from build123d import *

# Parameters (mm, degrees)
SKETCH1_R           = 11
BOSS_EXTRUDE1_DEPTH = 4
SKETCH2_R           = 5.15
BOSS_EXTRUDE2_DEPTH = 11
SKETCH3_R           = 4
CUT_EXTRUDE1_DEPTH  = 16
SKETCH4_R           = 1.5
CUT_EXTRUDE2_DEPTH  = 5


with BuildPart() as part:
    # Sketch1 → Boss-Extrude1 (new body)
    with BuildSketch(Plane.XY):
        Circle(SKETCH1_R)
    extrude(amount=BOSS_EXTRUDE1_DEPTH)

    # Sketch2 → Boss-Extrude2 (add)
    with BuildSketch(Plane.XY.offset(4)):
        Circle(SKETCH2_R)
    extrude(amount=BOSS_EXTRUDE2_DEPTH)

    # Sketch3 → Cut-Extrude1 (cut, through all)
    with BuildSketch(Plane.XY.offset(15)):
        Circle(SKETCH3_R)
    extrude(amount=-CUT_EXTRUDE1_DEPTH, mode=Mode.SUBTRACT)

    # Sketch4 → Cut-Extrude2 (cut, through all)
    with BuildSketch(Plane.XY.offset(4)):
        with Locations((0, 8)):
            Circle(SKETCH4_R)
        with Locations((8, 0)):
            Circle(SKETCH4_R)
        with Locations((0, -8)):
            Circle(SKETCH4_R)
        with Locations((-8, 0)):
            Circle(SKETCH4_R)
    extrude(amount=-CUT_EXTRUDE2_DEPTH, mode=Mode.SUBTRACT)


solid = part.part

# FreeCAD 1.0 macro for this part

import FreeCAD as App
import Part
import Sketcher
from FreeCAD import Vector

doc = App.newDocument("Part")
params = doc.addObject("Spreadsheet::Sheet", "Params")
for row, (alias, value) in enumerate([
    ("sketch1_diameter", "22 mm"),
    ("pad1_length", "4 mm"),
    ("sketch2_diameter", "10.3 mm"),
    ("pad2_length", "11 mm"),
    ("sketch3_diameter", "8 mm"),
    ("sketch4_diameter", "3 mm"),
], start=1):
    params.set(f"A{row}", alias)
    params.set(f"B{row}", "=" + value)
    params.setAlias(f"B{row}", alias)

body = doc.addObject("PartDesign::Body", "Body")

sketch1 = doc.addObject("Sketcher::SketchObject", "Sketch")
body.addObject(sketch1)
sketch1.AttachmentSupport = (doc.XY_Plane, [""])
sketch1.MapMode = "FlatFace"
sketch1.addGeometry(Part.Circle(Vector(0, 0, 0), Vector(0, 0, 1), 11), False)
sketch1.addConstraint([
    Sketcher.Constraint("Coincident", 0, 3, -1, 1),
    Sketcher.Constraint("Diameter", 0, 22.0),
])
sketch1.setExpression("Constraints[1]", "Params.sketch1_diameter")
pad1 = doc.addObject("PartDesign::Pad", "Pad")
body.addObject(pad1)
pad1.Profile = sketch1
pad1.setExpression("Length", "Params.pad1_length")

sketch2 = doc.addObject("Sketcher::SketchObject", "Sketch001")
body.addObject(sketch2)
sketch2.AttachmentSupport = (doc.XY_Plane, [""])
sketch2.MapMode = "FlatFace"
sketch2.AttachmentOffset = App.Placement(Vector(0, 0, 4), App.Rotation())
sketch2.addGeometry(Part.Circle(Vector(0, 0, 0), Vector(0, 0, 1), 5), False)
sketch2.addConstraint([
    Sketcher.Constraint("Coincident", 0, 3, -1, 1),
    Sketcher.Constraint("Diameter", 0, 10.3),
])
sketch2.setExpression("Constraints[1]", "Params.sketch2_diameter")
pad2 = doc.addObject("PartDesign::Pad", "Pad001")
body.addObject(pad2)
pad2.Profile = sketch2
pad2.setExpression("Length", "Params.pad2_length")

sketch3 = doc.addObject("Sketcher::SketchObject", "Sketch002")
body.addObject(sketch3)
sketch3.AttachmentSupport = (doc.XY_Plane, [""])
sketch3.MapMode = "FlatFace"
sketch3.AttachmentOffset = App.Placement(Vector(0, 0, 15), App.Rotation())
sketch3.addGeometry(Part.Circle(Vector(0, 0, 0), Vector(0, 0, 1), 4), False)
sketch3.addConstraint([
    Sketcher.Constraint("Coincident", 0, 3, -1, 1),
    Sketcher.Constraint("Diameter", 0, 8.0),
])
sketch3.setExpression("Constraints[1]", "Params.sketch3_diameter")
pocket1 = doc.addObject("PartDesign::Pocket", "Pocket")
body.addObject(pocket1)
pocket1.Profile = sketch3
pocket1.Type = "ThroughAll"

sketch4 = doc.addObject("Sketcher::SketchObject", "Sketch003")
body.addObject(sketch4)
sketch4.AttachmentSupport = (doc.XY_Plane, [""])
sketch4.MapMode = "FlatFace"
sketch4.AttachmentOffset = App.Placement(Vector(0, 0, 4), App.Rotation())
sketch4.addGeometry([
    Part.Circle(Vector(0, 8, 0), Vector(0, 0, 1), 1.5),
    Part.Circle(Vector(8, 0, 0), Vector(0, 0, 1), 1.5),
    Part.Circle(Vector(0, -8, 0), Vector(0, 0, 1), 1.5),
    Part.Circle(Vector(-8, 0, 0), Vector(0, 0, 1), 1.5),
], False)
sketch4.addConstraint([
    Sketcher.Constraint("Equal", 0, 1),
    Sketcher.Constraint("Equal", 1, 2),
    Sketcher.Constraint("Equal", 2, 3),
    Sketcher.Constraint("Symmetric", 0, 3, 2, 3, -1, 1),
    Sketcher.Constraint("Symmetric", 1, 3, 3, 3, -1, 1),
    Sketcher.Constraint("PointOnObject", 0, 3, -2),
    Sketcher.Constraint("PointOnObject", 1, 3, -1),
    Sketcher.Constraint("Diameter", 0, 3.0),
    Sketcher.Constraint("DistanceY", -1, 1, 0, 3, 8.0),
    Sketcher.Constraint("DistanceX", -1, 1, 1, 3, 8.0),
])
sketch4.setExpression("Constraints[7]", "Params.sketch4_diameter")
pocket2 = doc.addObject("PartDesign::Pocket", "Pocket001")
body.addObject(pocket2)
pocket2.Profile = sketch4
pocket2.Type = "ThroughAll"

doc.recompute()
